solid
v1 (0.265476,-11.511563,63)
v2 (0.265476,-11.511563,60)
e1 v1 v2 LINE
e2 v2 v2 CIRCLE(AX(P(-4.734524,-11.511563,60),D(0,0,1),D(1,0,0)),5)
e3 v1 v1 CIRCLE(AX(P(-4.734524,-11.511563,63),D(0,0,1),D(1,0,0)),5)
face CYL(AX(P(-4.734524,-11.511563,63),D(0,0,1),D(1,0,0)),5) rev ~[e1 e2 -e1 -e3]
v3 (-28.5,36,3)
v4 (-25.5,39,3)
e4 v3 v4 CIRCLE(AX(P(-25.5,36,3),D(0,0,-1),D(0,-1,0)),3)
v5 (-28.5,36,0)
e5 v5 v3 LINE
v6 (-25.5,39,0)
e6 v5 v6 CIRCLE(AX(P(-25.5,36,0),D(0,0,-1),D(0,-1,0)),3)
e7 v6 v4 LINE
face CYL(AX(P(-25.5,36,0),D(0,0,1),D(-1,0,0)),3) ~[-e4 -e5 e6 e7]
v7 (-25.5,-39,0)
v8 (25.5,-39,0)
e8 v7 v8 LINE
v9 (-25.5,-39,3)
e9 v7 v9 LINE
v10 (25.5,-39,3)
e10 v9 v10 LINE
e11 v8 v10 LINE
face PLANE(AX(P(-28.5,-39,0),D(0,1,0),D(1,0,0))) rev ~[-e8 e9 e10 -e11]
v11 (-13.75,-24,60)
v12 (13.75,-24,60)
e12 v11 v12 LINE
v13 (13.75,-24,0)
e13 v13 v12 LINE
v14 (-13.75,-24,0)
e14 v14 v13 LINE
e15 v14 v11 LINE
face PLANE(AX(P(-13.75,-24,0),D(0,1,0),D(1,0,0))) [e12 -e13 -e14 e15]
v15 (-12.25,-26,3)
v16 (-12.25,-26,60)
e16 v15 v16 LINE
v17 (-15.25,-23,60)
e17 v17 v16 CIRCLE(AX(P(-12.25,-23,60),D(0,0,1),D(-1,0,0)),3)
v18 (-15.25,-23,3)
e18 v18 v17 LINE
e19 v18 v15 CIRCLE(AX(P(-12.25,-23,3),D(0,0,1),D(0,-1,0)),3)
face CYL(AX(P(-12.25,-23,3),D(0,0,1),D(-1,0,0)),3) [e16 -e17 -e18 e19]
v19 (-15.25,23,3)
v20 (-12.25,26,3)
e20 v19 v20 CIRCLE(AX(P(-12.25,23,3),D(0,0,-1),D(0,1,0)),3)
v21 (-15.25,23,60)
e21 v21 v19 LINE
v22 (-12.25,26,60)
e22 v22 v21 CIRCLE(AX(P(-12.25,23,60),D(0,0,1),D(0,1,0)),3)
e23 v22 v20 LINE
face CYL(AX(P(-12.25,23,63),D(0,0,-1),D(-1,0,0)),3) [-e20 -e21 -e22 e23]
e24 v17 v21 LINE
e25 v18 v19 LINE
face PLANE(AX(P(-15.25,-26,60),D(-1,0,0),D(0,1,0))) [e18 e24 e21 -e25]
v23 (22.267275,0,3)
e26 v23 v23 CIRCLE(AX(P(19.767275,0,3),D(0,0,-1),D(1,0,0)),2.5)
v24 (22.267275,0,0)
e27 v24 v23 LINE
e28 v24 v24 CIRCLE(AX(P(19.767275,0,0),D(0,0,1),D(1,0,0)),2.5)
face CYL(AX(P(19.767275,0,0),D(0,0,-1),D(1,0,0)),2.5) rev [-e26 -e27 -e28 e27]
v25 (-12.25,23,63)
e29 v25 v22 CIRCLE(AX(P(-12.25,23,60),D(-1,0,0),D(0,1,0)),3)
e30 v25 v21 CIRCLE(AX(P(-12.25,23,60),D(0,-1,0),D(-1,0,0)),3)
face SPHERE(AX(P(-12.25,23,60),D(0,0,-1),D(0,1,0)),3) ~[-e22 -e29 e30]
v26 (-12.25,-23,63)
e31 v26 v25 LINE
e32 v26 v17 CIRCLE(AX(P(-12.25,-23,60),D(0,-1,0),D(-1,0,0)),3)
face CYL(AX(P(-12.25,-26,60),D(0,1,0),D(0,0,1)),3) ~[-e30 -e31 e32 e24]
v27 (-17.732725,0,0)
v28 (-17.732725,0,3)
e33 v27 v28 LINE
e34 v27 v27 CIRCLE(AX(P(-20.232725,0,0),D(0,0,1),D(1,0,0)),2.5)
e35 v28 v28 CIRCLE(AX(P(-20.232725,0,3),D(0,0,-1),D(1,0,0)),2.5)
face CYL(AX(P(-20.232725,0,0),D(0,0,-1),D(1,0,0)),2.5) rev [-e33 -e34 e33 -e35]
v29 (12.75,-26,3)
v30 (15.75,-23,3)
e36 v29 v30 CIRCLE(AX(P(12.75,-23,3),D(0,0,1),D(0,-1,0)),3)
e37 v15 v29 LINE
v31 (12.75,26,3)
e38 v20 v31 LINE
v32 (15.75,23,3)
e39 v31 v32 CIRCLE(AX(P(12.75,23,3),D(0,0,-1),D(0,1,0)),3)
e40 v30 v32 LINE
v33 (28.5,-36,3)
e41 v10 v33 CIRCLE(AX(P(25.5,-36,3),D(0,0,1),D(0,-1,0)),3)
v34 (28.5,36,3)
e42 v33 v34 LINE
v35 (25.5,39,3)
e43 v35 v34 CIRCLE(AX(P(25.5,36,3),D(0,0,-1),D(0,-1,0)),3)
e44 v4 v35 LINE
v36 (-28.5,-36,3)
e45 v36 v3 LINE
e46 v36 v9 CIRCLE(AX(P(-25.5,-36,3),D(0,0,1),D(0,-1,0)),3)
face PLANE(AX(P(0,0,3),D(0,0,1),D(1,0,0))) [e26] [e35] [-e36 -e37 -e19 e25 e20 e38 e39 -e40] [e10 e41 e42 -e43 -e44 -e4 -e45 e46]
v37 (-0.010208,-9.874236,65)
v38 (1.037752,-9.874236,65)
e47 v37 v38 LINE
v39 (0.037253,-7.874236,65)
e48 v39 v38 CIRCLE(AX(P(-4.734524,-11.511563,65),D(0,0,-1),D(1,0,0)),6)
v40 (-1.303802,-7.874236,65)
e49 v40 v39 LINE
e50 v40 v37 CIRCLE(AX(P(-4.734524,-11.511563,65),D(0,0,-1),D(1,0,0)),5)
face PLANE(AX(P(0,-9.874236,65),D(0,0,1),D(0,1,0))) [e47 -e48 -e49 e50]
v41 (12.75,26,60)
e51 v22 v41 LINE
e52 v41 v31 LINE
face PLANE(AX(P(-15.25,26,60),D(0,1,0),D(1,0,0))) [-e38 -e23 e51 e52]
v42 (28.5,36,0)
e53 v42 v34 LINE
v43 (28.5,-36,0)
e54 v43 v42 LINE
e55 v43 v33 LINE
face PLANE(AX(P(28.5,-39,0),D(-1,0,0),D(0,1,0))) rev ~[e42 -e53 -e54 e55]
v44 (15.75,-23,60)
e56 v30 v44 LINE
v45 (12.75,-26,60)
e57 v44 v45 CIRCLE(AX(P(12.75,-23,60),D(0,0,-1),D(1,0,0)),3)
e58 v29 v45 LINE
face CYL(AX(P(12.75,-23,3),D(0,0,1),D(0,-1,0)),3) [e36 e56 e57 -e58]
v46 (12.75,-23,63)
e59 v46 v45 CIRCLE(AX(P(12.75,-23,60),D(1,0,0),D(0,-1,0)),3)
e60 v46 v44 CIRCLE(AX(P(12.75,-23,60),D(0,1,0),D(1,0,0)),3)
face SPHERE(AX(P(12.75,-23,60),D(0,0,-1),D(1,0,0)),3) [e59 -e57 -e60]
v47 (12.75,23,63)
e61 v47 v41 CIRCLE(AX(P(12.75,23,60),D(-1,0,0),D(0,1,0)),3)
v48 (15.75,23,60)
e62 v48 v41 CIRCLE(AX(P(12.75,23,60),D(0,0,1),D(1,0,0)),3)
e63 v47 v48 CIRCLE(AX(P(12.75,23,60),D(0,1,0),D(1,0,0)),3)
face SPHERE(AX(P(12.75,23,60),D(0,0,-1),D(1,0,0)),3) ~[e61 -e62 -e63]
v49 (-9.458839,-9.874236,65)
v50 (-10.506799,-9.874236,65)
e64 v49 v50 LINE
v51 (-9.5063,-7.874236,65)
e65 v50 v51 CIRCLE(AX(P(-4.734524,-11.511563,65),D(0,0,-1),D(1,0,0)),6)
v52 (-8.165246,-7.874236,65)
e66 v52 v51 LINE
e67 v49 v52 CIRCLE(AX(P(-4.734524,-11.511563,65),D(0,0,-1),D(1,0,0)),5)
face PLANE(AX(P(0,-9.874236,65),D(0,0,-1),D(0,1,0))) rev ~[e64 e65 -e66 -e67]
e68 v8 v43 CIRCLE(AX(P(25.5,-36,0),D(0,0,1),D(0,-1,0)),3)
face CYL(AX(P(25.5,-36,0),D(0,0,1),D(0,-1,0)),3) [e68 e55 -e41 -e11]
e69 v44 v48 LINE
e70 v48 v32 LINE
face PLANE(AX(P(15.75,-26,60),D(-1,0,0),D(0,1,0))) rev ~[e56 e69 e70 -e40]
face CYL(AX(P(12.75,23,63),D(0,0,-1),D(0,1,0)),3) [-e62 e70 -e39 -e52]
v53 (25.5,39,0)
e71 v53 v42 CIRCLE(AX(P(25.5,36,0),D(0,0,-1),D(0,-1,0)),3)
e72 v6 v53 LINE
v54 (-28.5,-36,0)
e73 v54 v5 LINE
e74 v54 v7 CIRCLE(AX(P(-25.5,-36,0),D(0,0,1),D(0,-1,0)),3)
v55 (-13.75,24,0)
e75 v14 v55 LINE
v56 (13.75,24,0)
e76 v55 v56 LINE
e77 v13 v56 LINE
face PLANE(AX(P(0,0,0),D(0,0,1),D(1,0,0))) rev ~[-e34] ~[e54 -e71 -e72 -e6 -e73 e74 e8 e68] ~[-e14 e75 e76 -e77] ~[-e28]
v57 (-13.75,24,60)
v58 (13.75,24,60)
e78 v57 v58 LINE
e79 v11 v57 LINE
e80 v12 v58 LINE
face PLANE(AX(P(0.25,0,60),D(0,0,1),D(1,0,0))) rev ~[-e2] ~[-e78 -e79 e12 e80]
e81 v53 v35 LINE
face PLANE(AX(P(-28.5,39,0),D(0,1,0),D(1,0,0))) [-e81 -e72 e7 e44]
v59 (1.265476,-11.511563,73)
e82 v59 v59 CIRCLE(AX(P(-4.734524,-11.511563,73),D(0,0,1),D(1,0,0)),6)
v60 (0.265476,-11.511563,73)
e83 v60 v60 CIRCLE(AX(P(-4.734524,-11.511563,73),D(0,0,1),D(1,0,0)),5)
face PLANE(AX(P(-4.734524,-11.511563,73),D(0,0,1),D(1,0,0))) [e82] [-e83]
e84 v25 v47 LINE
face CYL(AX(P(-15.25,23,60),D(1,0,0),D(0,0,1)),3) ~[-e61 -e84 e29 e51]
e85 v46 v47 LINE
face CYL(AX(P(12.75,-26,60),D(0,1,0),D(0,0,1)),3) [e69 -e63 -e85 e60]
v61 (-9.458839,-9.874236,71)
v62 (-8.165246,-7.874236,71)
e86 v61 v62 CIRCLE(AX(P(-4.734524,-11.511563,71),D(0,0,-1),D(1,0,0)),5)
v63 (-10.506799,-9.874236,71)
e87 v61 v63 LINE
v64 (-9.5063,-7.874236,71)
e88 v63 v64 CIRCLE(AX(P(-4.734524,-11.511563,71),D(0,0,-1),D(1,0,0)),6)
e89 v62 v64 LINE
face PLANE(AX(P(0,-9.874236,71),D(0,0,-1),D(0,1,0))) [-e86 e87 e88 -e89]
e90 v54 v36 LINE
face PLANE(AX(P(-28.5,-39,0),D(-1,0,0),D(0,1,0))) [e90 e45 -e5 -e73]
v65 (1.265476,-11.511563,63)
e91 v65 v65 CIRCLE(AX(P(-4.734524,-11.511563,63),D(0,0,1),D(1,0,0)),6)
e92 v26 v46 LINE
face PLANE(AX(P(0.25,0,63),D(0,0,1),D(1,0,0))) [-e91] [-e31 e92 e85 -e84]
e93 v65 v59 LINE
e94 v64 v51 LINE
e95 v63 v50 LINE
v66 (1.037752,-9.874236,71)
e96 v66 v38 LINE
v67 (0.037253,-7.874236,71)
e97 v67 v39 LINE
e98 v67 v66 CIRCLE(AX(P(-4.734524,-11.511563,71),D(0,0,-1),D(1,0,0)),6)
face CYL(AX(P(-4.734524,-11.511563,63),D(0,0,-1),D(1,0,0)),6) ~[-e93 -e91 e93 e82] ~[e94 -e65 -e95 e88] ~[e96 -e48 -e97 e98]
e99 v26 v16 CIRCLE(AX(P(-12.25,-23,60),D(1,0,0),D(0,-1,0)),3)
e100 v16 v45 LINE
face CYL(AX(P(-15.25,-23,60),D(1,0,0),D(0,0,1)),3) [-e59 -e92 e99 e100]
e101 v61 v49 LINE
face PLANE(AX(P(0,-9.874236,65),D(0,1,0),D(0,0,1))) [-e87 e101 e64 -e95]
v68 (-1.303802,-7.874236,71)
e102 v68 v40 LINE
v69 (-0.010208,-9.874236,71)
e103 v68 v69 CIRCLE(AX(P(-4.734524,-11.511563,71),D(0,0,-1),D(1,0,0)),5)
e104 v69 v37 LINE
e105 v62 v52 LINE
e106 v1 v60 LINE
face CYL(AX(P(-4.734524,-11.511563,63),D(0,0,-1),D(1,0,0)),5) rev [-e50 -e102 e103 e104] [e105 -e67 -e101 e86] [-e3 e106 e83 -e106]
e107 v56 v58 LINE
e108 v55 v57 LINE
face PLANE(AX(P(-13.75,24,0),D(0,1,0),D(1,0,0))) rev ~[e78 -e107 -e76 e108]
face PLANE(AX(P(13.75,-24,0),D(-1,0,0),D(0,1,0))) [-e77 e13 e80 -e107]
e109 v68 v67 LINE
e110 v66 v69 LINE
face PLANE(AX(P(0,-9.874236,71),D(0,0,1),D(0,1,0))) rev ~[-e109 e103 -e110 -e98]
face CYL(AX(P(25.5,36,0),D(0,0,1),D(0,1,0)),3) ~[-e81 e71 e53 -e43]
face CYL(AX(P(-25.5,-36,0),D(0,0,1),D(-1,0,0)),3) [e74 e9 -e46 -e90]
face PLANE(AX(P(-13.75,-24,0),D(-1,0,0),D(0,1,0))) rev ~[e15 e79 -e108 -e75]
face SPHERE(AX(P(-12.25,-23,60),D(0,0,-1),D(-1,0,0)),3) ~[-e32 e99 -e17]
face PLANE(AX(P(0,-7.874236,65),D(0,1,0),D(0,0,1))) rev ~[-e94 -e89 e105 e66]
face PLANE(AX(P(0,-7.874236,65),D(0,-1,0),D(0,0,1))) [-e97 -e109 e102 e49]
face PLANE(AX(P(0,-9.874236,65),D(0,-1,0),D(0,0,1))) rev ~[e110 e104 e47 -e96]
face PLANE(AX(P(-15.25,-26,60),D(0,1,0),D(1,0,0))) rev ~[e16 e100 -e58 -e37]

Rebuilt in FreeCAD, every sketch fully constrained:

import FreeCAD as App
import Part
import Sketcher

V = App.Vector
Q = App.Units.Quantity


def edges_at(feature, points):
    """Names of the edges that pass closest to the given points."""
    edges = feature.Shape.Edges
    near = lambda p: min(range(len(edges)), key=lambda i: edges[i].distToShape(Part.Vertex(*p))[0])
    return sorted({f"Edge{near(p) + 1}" for p in points})

doc = App.newDocument("Part")
body = doc.addObject("PartDesign::Body", "Body")

# Sketch on XY plane
sketch1 = body.newObject("Sketcher::SketchObject", "Sketch")
sketch1.AttachmentSupport = (doc.getObject("XY_Plane"), [""])
sketch1.MapMode = "FlatFace"
sketch1.addGeometry(Part.LineSegment(V(-15, 26, 0), V(-15, -26, 0)), False)
sketch1.addGeometry(Part.LineSegment(V(-15, -26, 0), V(16, -26, 0)), False)
sketch1.addGeometry(Part.LineSegment(V(16, -26, 0), V(16, 26, 0)), False)
sketch1.addGeometry(Part.LineSegment(V(16, 26, 0), V(-15, 26, 0)), False)
sketch1.addGeometry(Part.LineSegment(V(14, -24, 0), V(-14, -24, 0)), False)
sketch1.addGeometry(Part.LineSegment(V(-14, -24, 0), V(-14, 24, 0)), False)
sketch1.addGeometry(Part.LineSegment(V(-14, 24, 0), V(14, 24, 0)), False)
sketch1.addGeometry(Part.LineSegment(V(14, 24, 0), V(14, -24, 0)), False)
sketch1.addConstraint(Sketcher.Constraint("Coincident", 0, 2, 1, 1))
sketch1.addConstraint(Sketcher.Constraint("Coincident", 1, 2, 2, 1))
sketch1.addConstraint(Sketcher.Constraint("Coincident", 2, 2, 3, 1))
sketch1.addConstraint(Sketcher.Constraint("Coincident", 3, 2, 0, 1))
sketch1.addConstraint(Sketcher.Constraint("Coincident", 4, 2, 5, 1))
sketch1.addConstraint(Sketcher.Constraint("Coincident", 5, 2, 6, 1))
sketch1.addConstraint(Sketcher.Constraint("Coincident", 6, 2, 7, 1))
sketch1.addConstraint(Sketcher.Constraint("Coincident", 7, 2, 4, 1))
sketch1.addConstraint(Sketcher.Constraint("Vertical", 0))
sketch1.addConstraint(Sketcher.Constraint("Horizontal", 1))
sketch1.addConstraint(Sketcher.Constraint("Vertical", 2))
sketch1.addConstraint(Sketcher.Constraint("Horizontal", 3))
sketch1.addConstraint(Sketcher.Constraint("Horizontal", 4))
sketch1.addConstraint(Sketcher.Constraint("Vertical", 5))
sketch1.addConstraint(Sketcher.Constraint("Horizontal", 6))
sketch1.addConstraint(Sketcher.Constraint("Vertical", 7))
sketch1.addConstraint(Sketcher.Constraint("Symmetric", 4, 2, 6, 2, -1, 1))
sketch1.addConstraint(Sketcher.Constraint("DistanceX", 1, 1, 1, 2, Q("31 mm")))
sketch1.addConstraint(Sketcher.Constraint("DistanceY", 0, 2, 0, 1, Q("52 mm")))
sketch1.addConstraint(Sketcher.Constraint("DistanceY", 5, 1, 5, 2, Q("48 mm")))
sketch1.addConstraint(Sketcher.Constraint("DistanceX", 4, 2, 4, 1, Q("27.5 mm")))
sketch1.addConstraint(Sketcher.Constraint("DistanceY", 0, 2, -1, 1, Q("26 mm")))
sketch1.addConstraint(Sketcher.Constraint("DistanceX", 6, 2, 2, 2, Q("2 mm")))
pad1 = body.newObject("PartDesign::Pad", "Pad")
pad1.Profile = sketch1
pad1.Length = 60

# Sketch on XY plane
sketch2 = body.newObject("Sketcher::SketchObject", "Sketch001")
sketch2.AttachmentSupport = (doc.getObject("XY_Plane"), [""])
sketch2.MapMode = "FlatFace"
sketch2.addGeometry(Part.LineSegment(V(-28, 39, 0), V(-28, -39, 0)), False)
sketch2.addGeometry(Part.LineSegment(V(-28, -39, 0), V(28, -39, 0)), False)
sketch2.addGeometry(Part.LineSegment(V(28, -39, 0), V(28, 39, 0)), False)
sketch2.addGeometry(Part.LineSegment(V(28, 39, 0), V(-28, 39, 0)), False)
sketch2.addGeometry(Part.LineSegment(V(16, -26, 0), V(-15, -26, 0)), False)
sketch2.addGeometry(Part.LineSegment(V(-15, -26, 0), V(-15, 26, 0)), False)
sketch2.addGeometry(Part.LineSegment(V(-15, 26, 0), V(16, 26, 0)), False)
sketch2.addGeometry(Part.LineSegment(V(16, 26, 0), V(16, -26, 0)), False)
sketch2.addConstraint(Sketcher.Constraint("Coincident", 0, 2, 1, 1))
sketch2.addConstraint(Sketcher.Constraint("Coincident", 1, 2, 2, 1))
sketch2.addConstraint(Sketcher.Constraint("Coincident", 2, 2, 3, 1))
sketch2.addConstraint(Sketcher.Constraint("Coincident", 3, 2, 0, 1))
sketch2.addConstraint(Sketcher.Constraint("Coincident", 4, 2, 5, 1))
sketch2.addConstraint(Sketcher.Constraint("Coincident", 5, 2, 6, 1))
sketch2.addConstraint(Sketcher.Constraint("Coincident", 6, 2, 7, 1))
sketch2.addConstraint(Sketcher.Constraint("Coincident", 7, 2, 4, 1))
sketch2.addConstraint(Sketcher.Constraint("Vertical", 0))
sketch2.addConstraint(Sketcher.Constraint("Horizontal", 1))
sketch2.addConstraint(Sketcher.Constraint("Vertical", 2))
sketch2.addConstraint(Sketcher.Constraint("Horizontal", 3))
sketch2.addConstraint(Sketcher.Constraint("Horizontal", 4))
sketch2.addConstraint(Sketcher.Constraint("Vertical", 5))
sketch2.addConstraint(Sketcher.Constraint("Horizontal", 6))
sketch2.addConstraint(Sketcher.Constraint("Vertical", 7))
sketch2.addConstraint(Sketcher.Constraint("Symmetric", 0, 2, 2, 2, -1, 1))
sketch2.addConstraint(Sketcher.Constraint("DistanceX", 1, 1, 1, 2, Q("57 mm")))
sketch2.addConstraint(Sketcher.Constraint("DistanceX", 4, 2, 4, 1, Q("31 mm")))
sketch2.addConstraint(Sketcher.Constraint("DistanceY", 0, 2, 0, 1, Q("78 mm")))
sketch2.addConstraint(Sketcher.Constraint("DistanceY", 5, 1, 5, 2, Q("52 mm")))
sketch2.addConstraint(Sketcher.Constraint("DistanceY", 4, 2, -1, 1, Q("26 mm")))
sketch2.addConstraint(Sketcher.Constraint("DistanceX", 4, 2, -1, 1, Q("15.25 mm")))
pad2 = body.newObject("PartDesign::Pad", "Pad001")
pad2.Profile = sketch2
pad2.Length = 3

# Sketch on XY plane
sketch3 = body.newObject("Sketcher::SketchObject", "Sketch002")
sketch3.AttachmentSupport = (doc.getObject("XY_Plane"), [""])
sketch3.MapMode = "FlatFace"
sketch3.AttachmentOffset = App.Placement(V(0, 0, 60), App.Rotation())
sketch3.addGeometry(Part.LineSegment(V(-15, 26, 0), V(-15, -26, 0)), False)
sketch3.addGeometry(Part.LineSegment(V(-15, -26, 0), V(16, -26, 0)), False)
sketch3.addGeometry(Part.LineSegment(V(16, -26, 0), V(16, 26, 0)), False)
sketch3.addGeometry(Part.LineSegment(V(16, 26, 0), V(-15, 26, 0)), False)
sketch3.addConstraint(Sketcher.Constraint("Coincident", 0, 2, 1, 1))
sketch3.addConstraint(Sketcher.Constraint("Coincident", 1, 2, 2, 1))
sketch3.addConstraint(Sketcher.Constraint("Coincident", 2, 2, 3, 1))
sketch3.addConstraint(Sketcher.Constraint("Coincident", 3, 2, 0, 1))
sketch3.addConstraint(Sketcher.Constraint("Vertical", 0))
sketch3.addConstraint(Sketcher.Constraint("Horizontal", 1))
sketch3.addConstraint(Sketcher.Constraint("Vertical", 2))
sketch3.addConstraint(Sketcher.Constraint("Horizontal", 3))
sketch3.addConstraint(Sketcher.Constraint("DistanceX", 1, 1, 1, 2, Q("31 mm")))
sketch3.addConstraint(Sketcher.Constraint("DistanceY", 0, 2, 0, 1, Q("52 mm")))
sketch3.addConstraint(Sketcher.Constraint("DistanceY", 0, 2, -1, 1, Q("26 mm")))
sketch3.addConstraint(Sketcher.Constraint("DistanceX", 0, 2, -1, 1, Q("15.25 mm")))
pad3 = body.newObject("PartDesign::Pad", "Pad002")
pad3.Profile = sketch3
pad3.Length = 3

# Sketch on XY plane
sketch4 = body.newObject("Sketcher::SketchObject", "Sketch003")
sketch4.AttachmentSupport = (doc.getObject("XY_Plane"), [""])
sketch4.MapMode = "FlatFace"
sketch4.AttachmentOffset = App.Placement(V(0, 0, 63), App.Rotation())
sketch4.addGeometry(Part.Circle(V(-5, -12, 0), V(0, 0, 1), 5), False)
sketch4.addConstraint(Sketcher.Constraint("Diameter", 0, Q("10 mm")))
sketch4.addConstraint(Sketcher.Constraint("DistanceX", 0, 3, -1, 1, Q("4.734524 mm")))
sketch4.addConstraint(Sketcher.Constraint("DistanceY", 0, 3, -1, 1, Q("11.511563 mm")))
pocket1 = body.newObject("PartDesign::Pocket", "Pocket")
pocket1.Profile = sketch4
pocket1.Length = 4

# Sketch on XY plane
sketch5 = body.newObject("Sketcher::SketchObject", "Sketch004")
sketch5.AttachmentSupport = (doc.getObject("XY_Plane"), [""])
sketch5.MapMode = "FlatFace"
sketch5.AttachmentOffset = App.Placement(V(0, 0, 63), App.Rotation())
sketch5.addGeometry(Part.Circle(V(-5, -12, 0), V(0, 0, 1), 6), False)
sketch5.addGeometry(Part.Circle(V(-5, -12, 0), V(0, 0, 1), 5), False)
sketch5.addConstraint(Sketcher.Constraint("Coincident", 1, 3, 0, 3))
sketch5.addConstraint(Sketcher.Constraint("Diameter", 0, Q("12 mm")))
sketch5.addConstraint(Sketcher.Constraint("Diameter", 1, Q("10 mm")))
sketch5.addConstraint(Sketcher.Constraint("DistanceX", 0, 3, -1, 1, Q("4.734524 mm")))
sketch5.addConstraint(Sketcher.Constraint("DistanceY", 0, 3, -1, 1, Q("11.511563 mm")))
pad4 = body.newObject("PartDesign::Pad", "Pad003")
pad4.Profile = sketch5
pad4.Length = 10

# Sketch on XY plane
sketch6 = body.newObject("Sketcher::SketchObject", "Sketch005")
sketch6.AttachmentSupport = (doc.getObject("XY_Plane"), [""])
sketch6.MapMode = "FlatFace"
sketch6.addGeometry(Part.Circle(V(-20.2, 0, 0), V(0, 0, 1), 2.5), False)
sketch6.addGeometry(Part.Circle(V(19.8, 0, 0), V(0, 0, 1), 2.5), False)
sketch6.addConstraint(Sketcher.Constraint("Equal", 0, 1))
sketch6.addConstraint(Sketcher.Constraint("PointOnObject", 0, 3, -1))
sketch6.addConstraint(Sketcher.Constraint("PointOnObject", 1, 3, -1))
sketch6.addConstraint(Sketcher.Constraint("Diameter", 0, Q("5 mm")))
sketch6.addConstraint(Sketcher.Constraint("DistanceX", 0, 3, 1, 3, Q("40 mm")))
sketch6.addConstraint(Sketcher.Constraint("DistanceX", 0, 3, -1, 1, Q("20.232725 mm")))
pocket2 = body.newObject("PartDesign::Pocket", "Pocket001")
pocket2.Profile = sketch6
pocket2.Length = 5
pocket2.Reversed = True
doc.recompute()

fillet = body.newObject("PartDesign::Fillet", "Fillet")
fillet.Base = (pocket2, edges_at(pocket2, [
    (28.5, 39, 1.5),
    (28.5, -39, 1.5),
    (-28.5, 39, 1.5),
    (-28.5, -39, 1.5),
    (-15.25, 26, 33),
    (15.75, 26, 33),
    (-15.25, -26, 33),
    (15.75, -26, 33),
    (15.75, 0, 63),
    (0.25, 26, 63),
    (-15.25, 0, 63),
    (0.25, -26, 63),
]))
fillet.Radius = 3

# Sketch on YZ plane
sketch7 = body.newObject("Sketcher::SketchObject", "Sketch006")
sketch7.AttachmentSupport = (doc.getObject("YZ_Plane"), [""])
sketch7.MapMode = "FlatFace"
sketch7.addGeometry(Part.LineSegment(V(-9.9, 71, 0), V(-9.9, 65, 0)), False)
sketch7.addGeometry(Part.LineSegment(V(-9.9, 65, 0), V(-7.9, 65, 0)), False)
sketch7.addGeometry(Part.LineSegment(V(-7.9, 65, 0), V(-7.9, 71, 0)), False)
sketch7.addGeometry(Part.LineSegment(V(-7.9, 71, 0), V(-9.9, 71, 0)), False)
sketch7.addConstraint(Sketcher.Constraint("Coincident", 0, 2, 1, 1))
sketch7.addConstraint(Sketcher.Constraint("Coincident", 1, 2, 2, 1))
sketch7.addConstraint(Sketcher.Constraint("Coincident", 2, 2, 3, 1))
sketch7.addConstraint(Sketcher.Constraint("Coincident", 3, 2, 0, 1))
sketch7.addConstraint(Sketcher.Constraint("Vertical", 0))
sketch7.addConstraint(Sketcher.Constraint("Horizontal", 1))
sketch7.addConstraint(Sketcher.Constraint("Vertical", 2))
sketch7.addConstraint(Sketcher.Constraint("Horizontal", 3))
sketch7.addConstraint(Sketcher.Constraint("DistanceX", 1, 1, 1, 2, Q("2 mm")))
sketch7.addConstraint(Sketcher.Constraint("DistanceY", 0, 2, 0, 1, Q("6 mm")))
sketch7.addConstraint(Sketcher.Constraint("DistanceY", -1, 1, 0, 2, Q("65 mm")))
sketch7.addConstraint(Sketcher.Constraint("DistanceX", 0, 2, -1, 1, Q("9.874236 mm")))
pocket3 = body.newObject("PartDesign::Pocket", "Pocket002")
pocket3.Profile = sketch7
pocket3.Type = "ThroughAll"
pocket3.Midplane = True

doc.recompute()
